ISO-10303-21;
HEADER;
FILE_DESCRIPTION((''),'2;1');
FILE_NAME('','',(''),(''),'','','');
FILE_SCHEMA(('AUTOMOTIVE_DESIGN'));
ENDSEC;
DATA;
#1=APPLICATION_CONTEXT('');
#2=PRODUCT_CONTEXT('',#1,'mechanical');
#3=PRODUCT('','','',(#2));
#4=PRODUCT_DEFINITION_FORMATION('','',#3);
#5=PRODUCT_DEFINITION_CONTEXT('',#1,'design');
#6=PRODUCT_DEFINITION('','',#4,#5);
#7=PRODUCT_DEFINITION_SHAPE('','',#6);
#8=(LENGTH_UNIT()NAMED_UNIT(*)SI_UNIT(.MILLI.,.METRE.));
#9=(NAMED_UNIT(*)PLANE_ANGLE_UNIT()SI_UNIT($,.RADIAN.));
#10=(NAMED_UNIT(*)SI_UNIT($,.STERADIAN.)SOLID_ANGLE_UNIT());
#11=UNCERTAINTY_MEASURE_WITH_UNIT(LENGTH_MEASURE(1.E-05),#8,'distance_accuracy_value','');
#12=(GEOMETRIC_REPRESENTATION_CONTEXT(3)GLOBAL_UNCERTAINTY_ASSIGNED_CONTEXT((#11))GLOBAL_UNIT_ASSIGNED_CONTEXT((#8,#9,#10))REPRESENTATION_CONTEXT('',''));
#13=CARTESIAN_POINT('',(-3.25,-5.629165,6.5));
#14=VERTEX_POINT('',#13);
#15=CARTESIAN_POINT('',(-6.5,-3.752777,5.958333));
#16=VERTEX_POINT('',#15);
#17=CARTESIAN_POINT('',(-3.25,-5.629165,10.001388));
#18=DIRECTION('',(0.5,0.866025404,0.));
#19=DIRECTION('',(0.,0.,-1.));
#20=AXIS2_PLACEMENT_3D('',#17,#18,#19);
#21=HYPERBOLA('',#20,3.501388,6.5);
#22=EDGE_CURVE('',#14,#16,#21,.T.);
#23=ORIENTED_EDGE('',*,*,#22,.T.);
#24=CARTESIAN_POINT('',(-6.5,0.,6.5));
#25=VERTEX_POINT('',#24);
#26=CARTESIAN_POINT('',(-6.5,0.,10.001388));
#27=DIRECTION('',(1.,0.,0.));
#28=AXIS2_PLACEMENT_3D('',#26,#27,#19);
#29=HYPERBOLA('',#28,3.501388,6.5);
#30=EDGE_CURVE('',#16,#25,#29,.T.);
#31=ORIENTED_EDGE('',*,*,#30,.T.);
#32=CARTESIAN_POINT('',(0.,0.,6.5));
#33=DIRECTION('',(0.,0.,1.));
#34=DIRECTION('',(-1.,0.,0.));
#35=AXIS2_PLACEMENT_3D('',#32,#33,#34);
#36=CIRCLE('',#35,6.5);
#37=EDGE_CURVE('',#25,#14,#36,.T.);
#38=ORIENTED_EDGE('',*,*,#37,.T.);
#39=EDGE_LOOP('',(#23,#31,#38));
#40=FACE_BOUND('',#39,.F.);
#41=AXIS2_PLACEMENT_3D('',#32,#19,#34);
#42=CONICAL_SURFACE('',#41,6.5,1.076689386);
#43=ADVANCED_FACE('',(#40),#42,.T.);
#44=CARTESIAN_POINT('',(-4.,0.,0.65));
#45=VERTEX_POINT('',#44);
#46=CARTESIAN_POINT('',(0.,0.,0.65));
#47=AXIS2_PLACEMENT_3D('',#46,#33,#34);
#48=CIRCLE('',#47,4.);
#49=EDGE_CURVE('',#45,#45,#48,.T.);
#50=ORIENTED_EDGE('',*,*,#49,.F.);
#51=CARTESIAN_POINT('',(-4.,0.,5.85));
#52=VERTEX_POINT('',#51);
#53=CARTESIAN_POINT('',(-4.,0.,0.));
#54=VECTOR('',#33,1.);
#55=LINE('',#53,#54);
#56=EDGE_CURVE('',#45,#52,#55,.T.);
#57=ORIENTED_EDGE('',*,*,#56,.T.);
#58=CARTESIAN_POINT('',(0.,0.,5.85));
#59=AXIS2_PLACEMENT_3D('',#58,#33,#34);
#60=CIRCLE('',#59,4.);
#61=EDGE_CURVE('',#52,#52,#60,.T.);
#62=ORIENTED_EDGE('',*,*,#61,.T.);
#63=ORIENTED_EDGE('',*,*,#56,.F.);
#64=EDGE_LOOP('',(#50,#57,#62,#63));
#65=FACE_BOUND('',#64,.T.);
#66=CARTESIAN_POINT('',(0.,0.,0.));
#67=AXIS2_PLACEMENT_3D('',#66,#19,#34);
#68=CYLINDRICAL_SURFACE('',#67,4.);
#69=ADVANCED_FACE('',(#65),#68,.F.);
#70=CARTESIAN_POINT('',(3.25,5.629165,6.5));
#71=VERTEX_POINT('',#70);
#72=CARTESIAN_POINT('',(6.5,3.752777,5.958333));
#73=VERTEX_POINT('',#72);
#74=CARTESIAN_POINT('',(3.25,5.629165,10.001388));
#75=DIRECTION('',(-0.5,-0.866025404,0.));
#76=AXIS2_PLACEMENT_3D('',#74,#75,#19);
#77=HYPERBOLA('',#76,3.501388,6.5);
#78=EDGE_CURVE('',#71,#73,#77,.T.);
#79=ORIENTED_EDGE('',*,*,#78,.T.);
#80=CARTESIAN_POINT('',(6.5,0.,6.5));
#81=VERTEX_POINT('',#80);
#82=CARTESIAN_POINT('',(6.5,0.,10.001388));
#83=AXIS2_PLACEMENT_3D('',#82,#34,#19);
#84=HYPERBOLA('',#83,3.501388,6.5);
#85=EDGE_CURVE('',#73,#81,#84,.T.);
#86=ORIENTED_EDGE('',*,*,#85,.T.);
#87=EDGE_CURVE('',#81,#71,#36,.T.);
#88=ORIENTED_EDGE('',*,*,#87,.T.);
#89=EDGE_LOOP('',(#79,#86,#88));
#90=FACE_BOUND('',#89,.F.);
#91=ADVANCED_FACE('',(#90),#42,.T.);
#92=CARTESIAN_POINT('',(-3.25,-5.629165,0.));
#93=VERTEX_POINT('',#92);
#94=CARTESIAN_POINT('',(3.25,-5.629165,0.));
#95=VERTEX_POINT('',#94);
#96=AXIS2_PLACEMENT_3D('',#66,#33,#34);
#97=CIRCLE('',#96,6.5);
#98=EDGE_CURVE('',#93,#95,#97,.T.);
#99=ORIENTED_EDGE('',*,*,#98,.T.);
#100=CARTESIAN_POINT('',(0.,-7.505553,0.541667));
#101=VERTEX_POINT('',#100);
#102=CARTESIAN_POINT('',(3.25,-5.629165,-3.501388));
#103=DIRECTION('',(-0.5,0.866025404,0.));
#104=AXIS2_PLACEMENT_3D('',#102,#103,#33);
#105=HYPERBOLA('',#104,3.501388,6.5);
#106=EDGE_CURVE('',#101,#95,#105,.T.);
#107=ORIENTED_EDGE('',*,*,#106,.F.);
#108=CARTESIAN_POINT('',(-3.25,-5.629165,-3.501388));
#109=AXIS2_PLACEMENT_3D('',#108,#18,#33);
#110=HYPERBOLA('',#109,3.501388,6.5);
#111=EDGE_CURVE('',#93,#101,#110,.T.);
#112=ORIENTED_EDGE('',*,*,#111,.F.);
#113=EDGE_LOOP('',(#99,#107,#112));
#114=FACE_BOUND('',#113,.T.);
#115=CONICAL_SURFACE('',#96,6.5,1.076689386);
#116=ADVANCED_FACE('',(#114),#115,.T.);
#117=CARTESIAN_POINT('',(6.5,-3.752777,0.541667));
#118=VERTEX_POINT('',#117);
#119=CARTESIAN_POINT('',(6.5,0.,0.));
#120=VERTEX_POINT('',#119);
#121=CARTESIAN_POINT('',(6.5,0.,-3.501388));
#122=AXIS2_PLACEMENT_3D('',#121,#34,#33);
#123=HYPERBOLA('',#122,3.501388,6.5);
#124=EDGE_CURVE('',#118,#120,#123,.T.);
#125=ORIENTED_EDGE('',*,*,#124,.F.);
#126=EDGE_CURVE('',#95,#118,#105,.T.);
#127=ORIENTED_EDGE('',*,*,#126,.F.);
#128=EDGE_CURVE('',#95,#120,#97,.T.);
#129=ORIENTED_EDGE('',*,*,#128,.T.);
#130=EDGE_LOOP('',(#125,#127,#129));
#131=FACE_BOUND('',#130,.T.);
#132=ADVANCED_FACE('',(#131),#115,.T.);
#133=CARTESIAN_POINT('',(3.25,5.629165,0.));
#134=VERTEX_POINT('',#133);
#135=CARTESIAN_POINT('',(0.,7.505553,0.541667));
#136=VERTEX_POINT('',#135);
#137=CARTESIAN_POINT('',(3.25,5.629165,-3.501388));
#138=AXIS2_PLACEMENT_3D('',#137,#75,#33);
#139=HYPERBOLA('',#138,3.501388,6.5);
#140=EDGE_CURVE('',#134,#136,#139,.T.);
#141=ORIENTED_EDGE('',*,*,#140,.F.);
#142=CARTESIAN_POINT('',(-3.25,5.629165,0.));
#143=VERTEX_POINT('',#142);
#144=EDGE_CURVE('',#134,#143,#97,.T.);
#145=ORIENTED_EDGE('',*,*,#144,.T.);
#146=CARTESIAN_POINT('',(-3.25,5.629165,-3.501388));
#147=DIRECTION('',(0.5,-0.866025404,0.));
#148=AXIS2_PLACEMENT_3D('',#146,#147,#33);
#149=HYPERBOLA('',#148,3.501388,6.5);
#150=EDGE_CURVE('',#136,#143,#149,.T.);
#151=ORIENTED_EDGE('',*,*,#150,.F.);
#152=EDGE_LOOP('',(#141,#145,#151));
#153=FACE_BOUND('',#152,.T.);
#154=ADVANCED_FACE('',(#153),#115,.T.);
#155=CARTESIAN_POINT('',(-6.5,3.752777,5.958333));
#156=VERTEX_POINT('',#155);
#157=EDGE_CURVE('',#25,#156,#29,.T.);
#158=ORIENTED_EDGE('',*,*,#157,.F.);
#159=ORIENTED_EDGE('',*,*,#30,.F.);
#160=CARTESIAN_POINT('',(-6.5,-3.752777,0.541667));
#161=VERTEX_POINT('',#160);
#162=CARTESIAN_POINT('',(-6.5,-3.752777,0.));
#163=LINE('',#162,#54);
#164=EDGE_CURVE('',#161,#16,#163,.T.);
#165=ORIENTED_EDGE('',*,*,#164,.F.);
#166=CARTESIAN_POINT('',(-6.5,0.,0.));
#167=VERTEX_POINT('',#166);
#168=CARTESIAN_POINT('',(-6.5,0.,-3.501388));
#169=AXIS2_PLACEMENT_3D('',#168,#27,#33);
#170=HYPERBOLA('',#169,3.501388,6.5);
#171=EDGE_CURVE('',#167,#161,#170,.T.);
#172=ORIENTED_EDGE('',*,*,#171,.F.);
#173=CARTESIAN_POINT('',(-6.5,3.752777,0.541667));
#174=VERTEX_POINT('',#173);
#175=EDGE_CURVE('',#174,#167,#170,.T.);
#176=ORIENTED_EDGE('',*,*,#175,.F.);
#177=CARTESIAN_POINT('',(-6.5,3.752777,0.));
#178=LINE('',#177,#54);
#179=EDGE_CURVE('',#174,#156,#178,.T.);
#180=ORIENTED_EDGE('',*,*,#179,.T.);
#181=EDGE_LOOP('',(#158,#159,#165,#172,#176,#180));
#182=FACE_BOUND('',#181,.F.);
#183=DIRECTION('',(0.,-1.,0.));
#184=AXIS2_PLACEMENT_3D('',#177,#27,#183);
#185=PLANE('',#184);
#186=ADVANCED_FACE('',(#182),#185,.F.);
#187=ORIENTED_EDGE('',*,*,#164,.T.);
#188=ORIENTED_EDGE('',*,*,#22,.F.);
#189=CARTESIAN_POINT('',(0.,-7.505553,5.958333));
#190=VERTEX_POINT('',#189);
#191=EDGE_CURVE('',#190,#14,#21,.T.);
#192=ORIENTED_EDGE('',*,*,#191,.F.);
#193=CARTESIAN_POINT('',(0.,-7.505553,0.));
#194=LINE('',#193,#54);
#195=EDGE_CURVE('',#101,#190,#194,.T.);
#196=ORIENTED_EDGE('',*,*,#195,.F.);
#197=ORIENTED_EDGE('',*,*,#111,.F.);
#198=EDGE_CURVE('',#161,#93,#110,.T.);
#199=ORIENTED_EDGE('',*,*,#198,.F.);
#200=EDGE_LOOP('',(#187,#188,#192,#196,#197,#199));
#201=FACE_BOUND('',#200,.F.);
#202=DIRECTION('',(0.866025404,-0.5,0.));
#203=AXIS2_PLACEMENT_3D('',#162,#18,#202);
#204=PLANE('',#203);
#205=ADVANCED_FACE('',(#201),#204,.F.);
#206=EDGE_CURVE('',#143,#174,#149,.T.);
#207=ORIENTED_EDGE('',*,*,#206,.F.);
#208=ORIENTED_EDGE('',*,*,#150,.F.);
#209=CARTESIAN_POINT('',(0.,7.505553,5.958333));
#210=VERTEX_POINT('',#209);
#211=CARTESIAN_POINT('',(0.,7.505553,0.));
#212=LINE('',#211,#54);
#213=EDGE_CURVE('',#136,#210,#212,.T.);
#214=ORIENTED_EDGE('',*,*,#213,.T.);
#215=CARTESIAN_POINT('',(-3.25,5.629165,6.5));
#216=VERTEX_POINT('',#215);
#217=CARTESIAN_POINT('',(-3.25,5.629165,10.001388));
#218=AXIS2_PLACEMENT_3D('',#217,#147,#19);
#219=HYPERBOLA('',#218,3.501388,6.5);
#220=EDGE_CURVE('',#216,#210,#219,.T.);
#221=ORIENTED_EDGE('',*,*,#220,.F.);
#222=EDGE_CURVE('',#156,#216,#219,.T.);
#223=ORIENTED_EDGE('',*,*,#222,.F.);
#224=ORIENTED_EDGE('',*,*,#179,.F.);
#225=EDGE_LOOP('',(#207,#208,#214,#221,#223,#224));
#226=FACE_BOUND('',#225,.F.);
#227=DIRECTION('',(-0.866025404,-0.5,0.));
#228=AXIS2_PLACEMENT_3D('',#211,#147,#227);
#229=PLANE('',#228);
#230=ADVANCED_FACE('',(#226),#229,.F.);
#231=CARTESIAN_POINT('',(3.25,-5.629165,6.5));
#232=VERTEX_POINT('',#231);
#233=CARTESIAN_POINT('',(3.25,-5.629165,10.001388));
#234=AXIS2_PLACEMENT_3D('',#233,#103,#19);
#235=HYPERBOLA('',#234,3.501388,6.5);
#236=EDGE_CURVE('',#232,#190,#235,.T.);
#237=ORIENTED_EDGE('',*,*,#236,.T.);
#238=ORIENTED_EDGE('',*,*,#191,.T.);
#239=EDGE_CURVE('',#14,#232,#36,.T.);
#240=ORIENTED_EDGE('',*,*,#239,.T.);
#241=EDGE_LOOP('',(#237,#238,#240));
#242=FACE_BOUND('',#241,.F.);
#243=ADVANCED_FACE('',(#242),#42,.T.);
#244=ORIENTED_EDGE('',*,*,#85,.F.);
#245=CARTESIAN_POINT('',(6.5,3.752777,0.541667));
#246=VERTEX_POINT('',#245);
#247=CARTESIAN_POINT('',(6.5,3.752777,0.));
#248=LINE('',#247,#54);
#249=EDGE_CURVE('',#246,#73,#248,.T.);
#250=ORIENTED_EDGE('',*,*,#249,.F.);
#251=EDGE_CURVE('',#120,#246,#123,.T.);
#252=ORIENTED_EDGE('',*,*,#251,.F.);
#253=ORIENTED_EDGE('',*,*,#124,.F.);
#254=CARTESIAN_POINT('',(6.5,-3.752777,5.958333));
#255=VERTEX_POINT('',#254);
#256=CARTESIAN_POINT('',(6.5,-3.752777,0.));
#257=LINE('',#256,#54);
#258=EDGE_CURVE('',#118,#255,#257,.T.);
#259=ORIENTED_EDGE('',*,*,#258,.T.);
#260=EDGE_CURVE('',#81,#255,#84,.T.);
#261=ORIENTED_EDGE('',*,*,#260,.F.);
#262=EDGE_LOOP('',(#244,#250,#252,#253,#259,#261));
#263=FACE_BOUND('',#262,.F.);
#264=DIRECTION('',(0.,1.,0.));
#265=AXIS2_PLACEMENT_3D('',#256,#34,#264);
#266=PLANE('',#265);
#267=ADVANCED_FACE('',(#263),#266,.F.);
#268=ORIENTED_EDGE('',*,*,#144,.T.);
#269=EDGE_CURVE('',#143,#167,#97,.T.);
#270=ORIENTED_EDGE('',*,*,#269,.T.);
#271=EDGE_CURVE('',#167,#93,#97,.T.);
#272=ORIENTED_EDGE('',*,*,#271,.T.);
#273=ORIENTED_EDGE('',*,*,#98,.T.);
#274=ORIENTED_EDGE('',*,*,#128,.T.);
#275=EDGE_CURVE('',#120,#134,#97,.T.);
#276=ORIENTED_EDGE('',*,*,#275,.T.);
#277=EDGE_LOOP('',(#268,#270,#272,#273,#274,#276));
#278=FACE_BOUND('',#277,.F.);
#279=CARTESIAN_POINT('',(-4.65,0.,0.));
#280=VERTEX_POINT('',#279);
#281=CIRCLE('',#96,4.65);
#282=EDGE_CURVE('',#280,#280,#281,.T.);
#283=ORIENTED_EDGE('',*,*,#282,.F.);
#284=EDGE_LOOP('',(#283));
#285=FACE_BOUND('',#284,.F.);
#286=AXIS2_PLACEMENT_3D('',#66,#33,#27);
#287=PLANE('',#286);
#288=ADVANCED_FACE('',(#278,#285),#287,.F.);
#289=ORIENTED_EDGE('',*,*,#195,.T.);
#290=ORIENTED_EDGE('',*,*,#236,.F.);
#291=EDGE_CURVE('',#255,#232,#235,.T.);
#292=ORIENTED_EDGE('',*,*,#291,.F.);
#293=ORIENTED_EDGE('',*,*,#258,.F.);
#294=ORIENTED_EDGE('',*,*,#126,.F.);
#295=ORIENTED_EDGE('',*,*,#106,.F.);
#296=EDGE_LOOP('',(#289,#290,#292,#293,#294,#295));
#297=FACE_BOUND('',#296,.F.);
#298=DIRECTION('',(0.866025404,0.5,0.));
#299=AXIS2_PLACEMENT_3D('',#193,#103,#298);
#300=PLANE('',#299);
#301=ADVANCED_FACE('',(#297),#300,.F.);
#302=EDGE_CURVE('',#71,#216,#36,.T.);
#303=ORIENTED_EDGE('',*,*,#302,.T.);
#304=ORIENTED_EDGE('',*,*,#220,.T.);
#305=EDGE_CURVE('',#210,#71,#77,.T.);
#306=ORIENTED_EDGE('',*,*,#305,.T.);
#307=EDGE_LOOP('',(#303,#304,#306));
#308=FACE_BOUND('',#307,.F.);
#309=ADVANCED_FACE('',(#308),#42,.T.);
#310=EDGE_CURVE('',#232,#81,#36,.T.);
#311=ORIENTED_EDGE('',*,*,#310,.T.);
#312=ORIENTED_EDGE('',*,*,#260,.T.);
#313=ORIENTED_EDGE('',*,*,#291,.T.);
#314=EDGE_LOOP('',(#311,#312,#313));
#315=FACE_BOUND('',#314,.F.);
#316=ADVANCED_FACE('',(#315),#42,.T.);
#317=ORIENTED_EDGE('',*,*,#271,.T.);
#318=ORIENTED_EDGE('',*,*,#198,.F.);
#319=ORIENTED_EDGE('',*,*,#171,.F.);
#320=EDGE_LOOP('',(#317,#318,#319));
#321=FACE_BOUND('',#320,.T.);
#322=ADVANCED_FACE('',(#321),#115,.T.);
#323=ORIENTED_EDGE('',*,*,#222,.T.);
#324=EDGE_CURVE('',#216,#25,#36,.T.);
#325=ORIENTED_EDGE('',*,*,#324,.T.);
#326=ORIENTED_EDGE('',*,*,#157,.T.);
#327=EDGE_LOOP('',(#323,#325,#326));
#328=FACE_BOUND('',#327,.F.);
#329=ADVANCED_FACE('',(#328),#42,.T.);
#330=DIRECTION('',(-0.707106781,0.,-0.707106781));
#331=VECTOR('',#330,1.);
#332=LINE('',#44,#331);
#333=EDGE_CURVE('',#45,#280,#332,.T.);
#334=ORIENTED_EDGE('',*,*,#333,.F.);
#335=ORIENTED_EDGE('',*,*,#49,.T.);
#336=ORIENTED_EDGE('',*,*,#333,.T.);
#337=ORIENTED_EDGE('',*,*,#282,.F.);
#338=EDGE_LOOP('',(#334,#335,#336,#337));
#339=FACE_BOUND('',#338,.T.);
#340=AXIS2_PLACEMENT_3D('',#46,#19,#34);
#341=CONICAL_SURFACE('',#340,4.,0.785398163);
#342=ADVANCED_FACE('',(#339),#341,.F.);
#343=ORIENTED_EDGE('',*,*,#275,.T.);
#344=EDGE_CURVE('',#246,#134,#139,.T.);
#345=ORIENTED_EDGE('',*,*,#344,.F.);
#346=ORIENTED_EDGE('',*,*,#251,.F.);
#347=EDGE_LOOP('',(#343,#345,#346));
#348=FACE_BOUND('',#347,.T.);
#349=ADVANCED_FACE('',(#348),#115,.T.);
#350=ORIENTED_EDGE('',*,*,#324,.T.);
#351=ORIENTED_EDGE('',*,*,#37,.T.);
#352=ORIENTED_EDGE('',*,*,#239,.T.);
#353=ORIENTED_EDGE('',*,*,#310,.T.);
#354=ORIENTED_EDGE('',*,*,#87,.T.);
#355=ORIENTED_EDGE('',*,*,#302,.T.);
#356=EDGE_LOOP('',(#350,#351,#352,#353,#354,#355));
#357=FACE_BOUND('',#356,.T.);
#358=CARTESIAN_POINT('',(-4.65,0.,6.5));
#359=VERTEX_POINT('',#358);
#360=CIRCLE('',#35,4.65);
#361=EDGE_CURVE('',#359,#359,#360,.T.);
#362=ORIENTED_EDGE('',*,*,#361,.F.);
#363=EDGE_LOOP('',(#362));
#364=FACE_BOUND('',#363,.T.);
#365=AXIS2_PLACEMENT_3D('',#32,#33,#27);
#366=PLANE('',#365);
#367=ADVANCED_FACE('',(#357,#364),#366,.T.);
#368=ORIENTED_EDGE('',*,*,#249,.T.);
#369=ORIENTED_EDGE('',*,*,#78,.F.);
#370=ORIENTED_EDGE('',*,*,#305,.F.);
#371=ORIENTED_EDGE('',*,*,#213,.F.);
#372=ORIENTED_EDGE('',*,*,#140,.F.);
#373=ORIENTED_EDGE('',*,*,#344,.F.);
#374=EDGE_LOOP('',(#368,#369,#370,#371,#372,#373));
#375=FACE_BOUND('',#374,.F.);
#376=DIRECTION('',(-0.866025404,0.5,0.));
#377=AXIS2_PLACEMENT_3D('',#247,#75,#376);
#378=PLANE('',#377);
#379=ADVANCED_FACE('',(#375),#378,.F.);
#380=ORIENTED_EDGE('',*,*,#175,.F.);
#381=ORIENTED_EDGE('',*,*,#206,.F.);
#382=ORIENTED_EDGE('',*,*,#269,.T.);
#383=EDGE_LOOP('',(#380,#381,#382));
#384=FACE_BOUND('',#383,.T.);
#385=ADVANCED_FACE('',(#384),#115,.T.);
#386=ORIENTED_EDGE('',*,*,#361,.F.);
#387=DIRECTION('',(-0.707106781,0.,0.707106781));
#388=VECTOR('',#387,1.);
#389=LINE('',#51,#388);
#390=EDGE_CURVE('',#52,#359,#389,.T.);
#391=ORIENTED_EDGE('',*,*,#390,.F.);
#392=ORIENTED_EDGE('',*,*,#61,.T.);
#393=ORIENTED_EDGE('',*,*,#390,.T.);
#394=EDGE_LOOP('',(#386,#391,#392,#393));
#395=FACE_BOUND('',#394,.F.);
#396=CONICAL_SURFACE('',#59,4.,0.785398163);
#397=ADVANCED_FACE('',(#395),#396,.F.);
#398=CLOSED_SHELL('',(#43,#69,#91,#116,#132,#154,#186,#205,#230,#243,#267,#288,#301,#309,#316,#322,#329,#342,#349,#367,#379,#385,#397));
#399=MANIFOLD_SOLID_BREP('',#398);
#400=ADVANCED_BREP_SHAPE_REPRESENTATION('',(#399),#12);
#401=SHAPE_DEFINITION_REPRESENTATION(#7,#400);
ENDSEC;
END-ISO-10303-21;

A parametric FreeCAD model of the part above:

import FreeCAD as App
import Part
import Sketcher
Q = App.Units.Quantity

doc = App.newDocument("Part")
body = doc.addObject("PartDesign::Body", "Body")

sketch1 = doc.addObject("Sketcher::SketchObject", "Sketch")
body.addObject(sketch1)
sketch1.AttachmentSupport = (doc.XY_Plane, [""])
sketch1.MapMode = "FlatFace"
sketch1.addGeometry([
    Part.LineSegment(App.Vector(0, -7.505553, 0), App.Vector(6.5, -3.752777, 0)),
    Part.LineSegment(App.Vector(6.5, -3.752777, 0), App.Vector(6.5, 3.752777, 0)),
    Part.LineSegment(App.Vector(6.5, 3.752777, 0), App.Vector(0, 7.505553, 0)),
    Part.LineSegment(App.Vector(0, 7.505553, 0), App.Vector(-6.5, 3.752777, 0)),
    Part.LineSegment(App.Vector(-6.5, 3.752777, 0), App.Vector(-6.5, -3.752777, 0)),
    Part.LineSegment(App.Vector(-6.5, -3.752777, 0), App.Vector(0, -7.505553, 0)),
    Part.Circle(App.Vector(0, 0, 0), App.Vector(0, 0, 1), 4),
], False)
sketch1.addConstraint([
    Sketcher.Constraint("Coincident", 0, 2, 1, 1),
    Sketcher.Constraint("Coincident", 1, 2, 2, 1),
    Sketcher.Constraint("Coincident", 2, 2, 3, 1),
    Sketcher.Constraint("Coincident", 3, 2, 4, 1),
    Sketcher.Constraint("Coincident", 4, 2, 5, 1),
    Sketcher.Constraint("Coincident", 5, 2, 0, 1),
    Sketcher.Constraint("Vertical", 1),
    Sketcher.Constraint("Vertical", 4),
    Sketcher.Constraint("Coincident", 6, 3, -1, 1),
    Sketcher.Constraint("Symmetric", 0, 2, 3, 2, -1, 1),
    Sketcher.Constraint("Symmetric", 2, 2, 5, 2, -1, 1),
    Sketcher.Constraint("PointOnObject", 2, 2, -2),
    Sketcher.Constraint("Parallel", 2, 5),
    Sketcher.Constraint("Horizontal", 1, 2, 3, 2),
    Sketcher.Constraint("Diameter", 6, Q("8 mm")),
    Sketcher.Constraint("Angle", 0, Q("30 deg")),
    Sketcher.Constraint("DistanceX", 3, 2, 1, 2, Q("13 mm")),
    Sketcher.Constraint("DistanceY", 1, 1, 1, 2, Q("7.505554 mm")),
])
pad1 = doc.addObject("PartDesign::Pad", "Pad")
body.addObject(pad1)
pad1.Profile = sketch1
pad1.Length = 6.5

sketch2 = doc.addObject("Sketcher::SketchObject", "Sketch001")
body.addObject(sketch2)
sketch2.AttachmentSupport = (doc.YZ_Plane, [""])
sketch2.MapMode = "FlatFace"
sketch2.addGeometry([
    Part.LineSegment(App.Vector(7.505553, 6.5, 0), App.Vector(6.5, 6.5, 0)),
    Part.LineSegment(App.Vector(6.5, 6.5, 0), App.Vector(7.505553, 5.958333, 0)),
    Part.LineSegment(App.Vector(7.505553, 5.958333, 0), App.Vector(7.505553, 6.5, 0)),
    Part.LineSegment(App.Vector(7.505553, 0, 0), App.Vector(7.505553, 0.541667, 0)),
    Part.LineSegment(App.Vector(7.505553, 0.541667, 0), App.Vector(6.5, 0, 0)),
    Part.LineSegment(App.Vector(6.5, 0, 0), App.Vector(7.505553, 0, 0)),
    Part.LineSegment(App.Vector(4, 6.5, 0), App.Vector(4, 5.85, 0)),
    Part.LineSegment(App.Vector(4, 5.85, 0), App.Vector(4.65, 6.5, 0)),
    Part.LineSegment(App.Vector(4.65, 6.5, 0), App.Vector(4, 6.5, 0)),
    Part.LineSegment(App.Vector(4, 0.65, 0), App.Vector(4, 0, 0)),
    Part.LineSegment(App.Vector(4, 0, 0), App.Vector(4.65, 0, 0)),
    Part.LineSegment(App.Vector(4.65, 0, 0), App.Vector(4, 0.65, 0)),
], False)
sketch2.addConstraint([
    Sketcher.Constraint("Coincident", 0, 2, 1, 1),
    Sketcher.Constraint("Coincident", 1, 2, 2, 1),
    Sketcher.Constraint("Coincident", 2, 2, 0, 1),
    Sketcher.Constraint("Coincident", 3, 2, 4, 1),
    Sketcher.Constraint("Coincident", 4, 2, 5, 1),
    Sketcher.Constraint("Coincident", 5, 2, 3, 1),
    Sketcher.Constraint("Coincident", 6, 2, 7, 1),
    Sketcher.Constraint("Coincident", 7, 2, 8, 1),
    Sketcher.Constraint("Coincident", 8, 2, 6, 1),
    Sketcher.Constraint("Coincident", 9, 2, 10, 1),
    Sketcher.Constraint("Coincident", 10, 2, 11, 1),
    Sketcher.Constraint("Coincident", 11, 2, 9, 1),
    Sketcher.Constraint("Horizontal", 0),
    Sketcher.Constraint("Vertical", 2),
    Sketcher.Constraint("Vertical", 3),
    Sketcher.Constraint("Horizontal", 5),
    Sketcher.Constraint("Vertical", 6),
    Sketcher.Constraint("Horizontal", 8),
    Sketcher.Constraint("Vertical", 9),
    Sketcher.Constraint("Horizontal", 10),
    Sketcher.Constraint("PointOnObject", 4, 2, -1),
    Sketcher.Constraint("PointOnObject", 9, 2, -1),
    Sketcher.Constraint("Perpendicular", 7, 11),
    Sketcher.Constraint("Horizontal", 2, 2, 7, 2),
    Sketcher.Constraint("Vertical", 2, 2, 3, 2),
    Sketcher.Constraint("Vertical", 0, 2, 4, 2),
    Sketcher.Constraint("Vertical", 8, 2, 9, 2),
    Sketcher.Constraint("Vertical", 7, 2, 10, 2),
    Sketcher.Constraint("Equal", 2, 3),
    Sketcher.Constraint("Equal", 10, 6),
    Sketcher.Constraint("DistanceX", -1, 1, 6, 2, Q("4 mm")),
    Sketcher.Constraint("DistanceX", 8, 2, 8, 1, Q("0.65 mm")),
    Sketcher.Constraint("DistanceX", -1, 1, 0, 2, Q("6.5 mm")),
    Sketcher.Constraint("DistanceY", -1, 1, 0, 2, Q("6.5 mm")),
    Sketcher.Constraint("DistanceX", 0, 2, 0, 1, Q("1.005553 mm")),
    Sketcher.Constraint("DistanceY", 2, 1, 2, 2, Q("0.541667 mm")),
])
groove = doc.addObject("PartDesign::Groove", "Groove")
body.addObject(groove)
groove.Profile = sketch2
groove.ReferenceAxis = (sketch2, ["V_Axis"])
groove.Angle = 360

doc.recompute()
